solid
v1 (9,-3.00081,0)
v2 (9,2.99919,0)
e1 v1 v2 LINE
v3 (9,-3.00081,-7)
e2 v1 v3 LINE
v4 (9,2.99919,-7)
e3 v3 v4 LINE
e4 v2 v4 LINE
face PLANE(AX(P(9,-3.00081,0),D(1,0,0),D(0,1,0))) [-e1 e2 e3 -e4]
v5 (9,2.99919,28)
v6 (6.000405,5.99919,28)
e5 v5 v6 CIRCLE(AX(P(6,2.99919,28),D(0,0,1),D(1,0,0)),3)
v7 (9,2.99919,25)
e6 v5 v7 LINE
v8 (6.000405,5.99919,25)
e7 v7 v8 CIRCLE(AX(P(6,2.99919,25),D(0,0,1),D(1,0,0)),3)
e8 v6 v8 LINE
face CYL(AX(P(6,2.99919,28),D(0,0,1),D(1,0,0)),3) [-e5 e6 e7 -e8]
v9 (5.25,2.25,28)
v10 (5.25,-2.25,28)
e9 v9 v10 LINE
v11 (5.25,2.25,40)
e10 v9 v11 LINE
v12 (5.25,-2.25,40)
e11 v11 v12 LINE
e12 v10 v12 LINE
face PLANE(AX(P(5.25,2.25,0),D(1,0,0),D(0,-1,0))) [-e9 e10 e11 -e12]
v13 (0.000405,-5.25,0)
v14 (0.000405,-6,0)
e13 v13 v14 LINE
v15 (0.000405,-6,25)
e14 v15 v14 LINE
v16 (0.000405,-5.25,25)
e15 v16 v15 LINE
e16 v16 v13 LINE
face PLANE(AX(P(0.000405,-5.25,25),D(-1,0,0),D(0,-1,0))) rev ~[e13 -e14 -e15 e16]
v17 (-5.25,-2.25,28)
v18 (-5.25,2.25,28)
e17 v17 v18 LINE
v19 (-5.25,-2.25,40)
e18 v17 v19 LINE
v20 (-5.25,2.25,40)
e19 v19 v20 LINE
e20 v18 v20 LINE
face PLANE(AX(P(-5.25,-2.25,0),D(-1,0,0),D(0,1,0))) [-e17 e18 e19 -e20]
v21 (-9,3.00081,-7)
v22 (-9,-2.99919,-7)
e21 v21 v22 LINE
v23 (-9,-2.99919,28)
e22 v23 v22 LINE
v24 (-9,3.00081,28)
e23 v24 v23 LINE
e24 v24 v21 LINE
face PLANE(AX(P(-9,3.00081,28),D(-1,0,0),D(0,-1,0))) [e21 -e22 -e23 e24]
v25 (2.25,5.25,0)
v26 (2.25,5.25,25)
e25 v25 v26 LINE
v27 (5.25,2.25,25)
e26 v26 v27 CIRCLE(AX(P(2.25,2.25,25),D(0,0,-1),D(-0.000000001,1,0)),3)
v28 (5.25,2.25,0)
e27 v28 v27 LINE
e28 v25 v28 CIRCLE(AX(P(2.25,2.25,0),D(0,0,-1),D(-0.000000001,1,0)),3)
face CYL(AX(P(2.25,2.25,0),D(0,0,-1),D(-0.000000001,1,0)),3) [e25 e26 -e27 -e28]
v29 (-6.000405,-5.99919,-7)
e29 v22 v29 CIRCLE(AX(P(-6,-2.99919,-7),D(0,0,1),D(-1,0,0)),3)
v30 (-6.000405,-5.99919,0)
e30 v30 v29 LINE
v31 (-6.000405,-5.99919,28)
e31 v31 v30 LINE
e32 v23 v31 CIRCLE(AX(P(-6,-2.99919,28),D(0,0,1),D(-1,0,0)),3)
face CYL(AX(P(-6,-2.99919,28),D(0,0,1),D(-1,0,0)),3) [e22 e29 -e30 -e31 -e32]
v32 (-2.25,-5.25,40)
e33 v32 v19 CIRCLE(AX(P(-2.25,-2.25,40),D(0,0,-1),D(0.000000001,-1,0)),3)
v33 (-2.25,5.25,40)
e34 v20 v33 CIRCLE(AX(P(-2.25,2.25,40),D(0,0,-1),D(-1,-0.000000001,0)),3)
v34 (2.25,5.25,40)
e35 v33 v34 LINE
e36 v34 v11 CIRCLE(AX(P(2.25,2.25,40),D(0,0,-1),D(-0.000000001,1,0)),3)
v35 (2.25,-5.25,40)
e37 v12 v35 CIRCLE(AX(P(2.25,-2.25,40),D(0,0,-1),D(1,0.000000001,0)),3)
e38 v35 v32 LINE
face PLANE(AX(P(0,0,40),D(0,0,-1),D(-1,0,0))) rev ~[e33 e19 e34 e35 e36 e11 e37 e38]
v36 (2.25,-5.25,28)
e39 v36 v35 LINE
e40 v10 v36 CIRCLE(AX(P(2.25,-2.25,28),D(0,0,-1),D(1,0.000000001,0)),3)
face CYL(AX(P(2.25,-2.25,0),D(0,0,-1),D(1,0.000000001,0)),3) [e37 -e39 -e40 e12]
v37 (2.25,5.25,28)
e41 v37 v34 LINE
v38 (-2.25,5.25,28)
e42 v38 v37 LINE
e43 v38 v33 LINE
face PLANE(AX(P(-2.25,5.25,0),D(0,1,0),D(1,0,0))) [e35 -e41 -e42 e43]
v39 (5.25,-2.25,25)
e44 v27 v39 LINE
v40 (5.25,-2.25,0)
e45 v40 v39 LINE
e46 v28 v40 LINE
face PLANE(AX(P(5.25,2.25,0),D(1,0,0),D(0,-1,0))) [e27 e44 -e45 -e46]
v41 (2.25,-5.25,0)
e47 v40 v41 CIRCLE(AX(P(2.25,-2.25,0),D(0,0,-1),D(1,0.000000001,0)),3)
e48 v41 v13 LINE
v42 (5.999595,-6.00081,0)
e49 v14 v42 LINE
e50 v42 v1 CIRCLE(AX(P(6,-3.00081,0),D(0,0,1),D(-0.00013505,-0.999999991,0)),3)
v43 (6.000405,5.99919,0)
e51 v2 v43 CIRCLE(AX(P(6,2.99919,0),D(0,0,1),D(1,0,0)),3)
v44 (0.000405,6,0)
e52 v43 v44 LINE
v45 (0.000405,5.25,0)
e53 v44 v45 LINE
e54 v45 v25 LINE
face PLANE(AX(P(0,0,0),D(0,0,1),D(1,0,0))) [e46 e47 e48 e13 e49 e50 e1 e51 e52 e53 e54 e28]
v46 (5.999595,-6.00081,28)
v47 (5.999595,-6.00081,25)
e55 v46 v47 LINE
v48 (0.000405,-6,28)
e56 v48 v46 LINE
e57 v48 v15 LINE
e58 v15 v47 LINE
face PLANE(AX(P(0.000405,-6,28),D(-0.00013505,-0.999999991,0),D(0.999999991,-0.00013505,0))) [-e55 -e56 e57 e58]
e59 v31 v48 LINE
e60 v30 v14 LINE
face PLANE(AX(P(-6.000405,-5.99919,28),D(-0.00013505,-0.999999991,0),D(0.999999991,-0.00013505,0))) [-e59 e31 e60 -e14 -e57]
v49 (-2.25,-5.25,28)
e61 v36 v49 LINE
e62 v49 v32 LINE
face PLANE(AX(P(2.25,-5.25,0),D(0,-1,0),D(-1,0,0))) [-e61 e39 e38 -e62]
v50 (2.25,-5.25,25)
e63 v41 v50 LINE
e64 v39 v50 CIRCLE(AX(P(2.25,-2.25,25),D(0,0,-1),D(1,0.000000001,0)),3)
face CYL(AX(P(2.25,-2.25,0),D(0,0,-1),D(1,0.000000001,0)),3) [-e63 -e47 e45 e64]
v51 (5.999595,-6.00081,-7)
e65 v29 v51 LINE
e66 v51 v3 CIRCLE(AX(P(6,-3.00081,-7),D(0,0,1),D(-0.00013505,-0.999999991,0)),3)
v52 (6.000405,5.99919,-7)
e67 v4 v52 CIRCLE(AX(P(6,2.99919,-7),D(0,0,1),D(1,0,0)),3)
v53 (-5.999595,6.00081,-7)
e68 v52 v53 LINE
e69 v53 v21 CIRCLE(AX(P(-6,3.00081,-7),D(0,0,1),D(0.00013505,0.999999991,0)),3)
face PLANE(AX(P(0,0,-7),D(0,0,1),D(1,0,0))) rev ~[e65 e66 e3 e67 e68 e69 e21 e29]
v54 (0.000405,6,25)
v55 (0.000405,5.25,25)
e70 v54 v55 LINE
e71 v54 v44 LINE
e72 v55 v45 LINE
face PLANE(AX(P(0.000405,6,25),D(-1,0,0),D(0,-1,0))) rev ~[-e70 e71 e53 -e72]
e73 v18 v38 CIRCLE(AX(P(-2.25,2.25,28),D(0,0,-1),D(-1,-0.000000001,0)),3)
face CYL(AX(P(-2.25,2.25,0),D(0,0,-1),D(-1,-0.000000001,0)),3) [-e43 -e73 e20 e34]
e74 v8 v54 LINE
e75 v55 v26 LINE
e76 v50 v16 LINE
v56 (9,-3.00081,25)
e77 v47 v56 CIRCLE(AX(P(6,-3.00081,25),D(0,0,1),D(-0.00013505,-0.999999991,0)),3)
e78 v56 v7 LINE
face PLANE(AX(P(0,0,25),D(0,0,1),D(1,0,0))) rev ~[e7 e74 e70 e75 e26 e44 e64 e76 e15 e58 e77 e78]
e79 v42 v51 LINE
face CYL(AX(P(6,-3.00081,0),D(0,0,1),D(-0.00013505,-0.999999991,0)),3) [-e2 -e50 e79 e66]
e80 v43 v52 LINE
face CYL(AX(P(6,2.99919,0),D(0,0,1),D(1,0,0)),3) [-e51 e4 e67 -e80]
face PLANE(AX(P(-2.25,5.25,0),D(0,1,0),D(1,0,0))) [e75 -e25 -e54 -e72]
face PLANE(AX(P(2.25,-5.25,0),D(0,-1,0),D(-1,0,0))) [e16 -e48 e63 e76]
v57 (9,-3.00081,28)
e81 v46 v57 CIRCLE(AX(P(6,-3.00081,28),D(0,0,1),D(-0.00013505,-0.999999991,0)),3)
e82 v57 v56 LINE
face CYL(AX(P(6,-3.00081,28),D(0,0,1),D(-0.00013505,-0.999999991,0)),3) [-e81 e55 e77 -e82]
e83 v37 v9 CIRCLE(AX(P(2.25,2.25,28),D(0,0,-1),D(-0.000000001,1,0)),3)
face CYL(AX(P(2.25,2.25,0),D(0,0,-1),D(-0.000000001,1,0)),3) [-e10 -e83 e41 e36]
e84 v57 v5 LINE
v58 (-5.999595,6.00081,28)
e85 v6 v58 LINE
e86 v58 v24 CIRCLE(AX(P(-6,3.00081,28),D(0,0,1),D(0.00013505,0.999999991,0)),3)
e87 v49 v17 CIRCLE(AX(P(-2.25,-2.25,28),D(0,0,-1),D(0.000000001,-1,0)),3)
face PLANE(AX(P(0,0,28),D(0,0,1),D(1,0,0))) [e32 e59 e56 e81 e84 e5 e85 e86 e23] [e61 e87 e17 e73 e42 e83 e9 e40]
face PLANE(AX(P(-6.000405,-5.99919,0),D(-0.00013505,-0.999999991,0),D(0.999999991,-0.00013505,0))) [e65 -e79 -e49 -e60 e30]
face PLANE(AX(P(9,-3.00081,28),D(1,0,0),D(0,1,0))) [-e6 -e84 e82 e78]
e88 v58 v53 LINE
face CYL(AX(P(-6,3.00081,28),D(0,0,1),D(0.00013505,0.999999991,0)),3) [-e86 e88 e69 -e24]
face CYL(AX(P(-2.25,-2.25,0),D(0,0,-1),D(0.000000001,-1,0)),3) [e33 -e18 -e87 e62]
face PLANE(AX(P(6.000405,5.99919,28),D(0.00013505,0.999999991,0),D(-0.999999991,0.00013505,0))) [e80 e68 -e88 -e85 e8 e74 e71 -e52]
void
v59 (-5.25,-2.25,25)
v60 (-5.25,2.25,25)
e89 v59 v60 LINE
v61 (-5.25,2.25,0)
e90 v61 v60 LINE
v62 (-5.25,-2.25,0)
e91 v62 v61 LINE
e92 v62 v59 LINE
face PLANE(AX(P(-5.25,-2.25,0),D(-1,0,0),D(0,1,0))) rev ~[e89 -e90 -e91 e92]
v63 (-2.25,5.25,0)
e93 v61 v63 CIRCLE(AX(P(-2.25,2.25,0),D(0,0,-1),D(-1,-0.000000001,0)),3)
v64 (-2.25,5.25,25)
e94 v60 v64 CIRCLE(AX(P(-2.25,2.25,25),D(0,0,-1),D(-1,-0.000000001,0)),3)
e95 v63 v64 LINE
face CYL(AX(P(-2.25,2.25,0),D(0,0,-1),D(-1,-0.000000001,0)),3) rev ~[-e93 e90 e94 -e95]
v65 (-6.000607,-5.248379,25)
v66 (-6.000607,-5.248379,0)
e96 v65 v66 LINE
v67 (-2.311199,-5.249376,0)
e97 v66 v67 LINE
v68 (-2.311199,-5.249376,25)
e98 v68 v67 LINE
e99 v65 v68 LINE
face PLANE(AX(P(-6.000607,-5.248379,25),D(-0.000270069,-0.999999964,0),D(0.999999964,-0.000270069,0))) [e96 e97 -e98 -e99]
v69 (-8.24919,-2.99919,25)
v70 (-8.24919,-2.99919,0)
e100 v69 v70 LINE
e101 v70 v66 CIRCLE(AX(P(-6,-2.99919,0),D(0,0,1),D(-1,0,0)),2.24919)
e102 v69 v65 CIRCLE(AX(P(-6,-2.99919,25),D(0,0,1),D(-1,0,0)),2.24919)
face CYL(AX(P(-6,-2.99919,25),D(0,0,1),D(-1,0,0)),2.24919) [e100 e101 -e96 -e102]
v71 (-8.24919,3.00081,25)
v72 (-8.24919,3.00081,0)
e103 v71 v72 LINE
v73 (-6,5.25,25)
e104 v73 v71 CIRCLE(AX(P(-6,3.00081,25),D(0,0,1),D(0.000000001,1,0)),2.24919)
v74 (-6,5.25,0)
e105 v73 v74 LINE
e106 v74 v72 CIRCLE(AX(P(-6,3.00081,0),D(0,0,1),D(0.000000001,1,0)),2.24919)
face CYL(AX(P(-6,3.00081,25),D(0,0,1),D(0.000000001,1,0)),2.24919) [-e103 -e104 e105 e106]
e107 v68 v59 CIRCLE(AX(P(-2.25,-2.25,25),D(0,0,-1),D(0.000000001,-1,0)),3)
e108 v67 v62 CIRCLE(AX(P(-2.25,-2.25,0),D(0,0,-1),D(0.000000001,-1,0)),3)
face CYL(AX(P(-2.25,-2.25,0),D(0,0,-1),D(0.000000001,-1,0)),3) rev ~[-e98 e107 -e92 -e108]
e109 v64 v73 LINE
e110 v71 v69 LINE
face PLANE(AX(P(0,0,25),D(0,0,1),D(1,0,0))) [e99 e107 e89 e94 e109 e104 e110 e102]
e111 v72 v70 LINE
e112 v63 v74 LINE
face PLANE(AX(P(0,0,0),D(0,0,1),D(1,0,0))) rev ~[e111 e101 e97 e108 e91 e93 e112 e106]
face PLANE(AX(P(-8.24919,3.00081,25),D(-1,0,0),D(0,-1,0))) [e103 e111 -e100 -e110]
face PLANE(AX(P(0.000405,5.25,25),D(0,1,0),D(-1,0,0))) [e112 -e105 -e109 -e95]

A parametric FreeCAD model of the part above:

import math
import FreeCAD as App
import Part
import Sketcher

doc = App.newDocument("Part")
body = doc.addObject("PartDesign::Body", "Body")

sketch1 = doc.addObject("Sketcher::SketchObject", "Sketch")
body.addObject(sketch1)
sketch1.AttachmentSupport = (doc.XY_Plane, [""])
sketch1.MapMode = "FlatFace"
sketch1.addGeometry(Part.LineSegment(App.Vector(2.2, 5.2, 0), App.Vector(-2.2, 5.2, 0)), False)
sketch1.addGeometry(Part.ArcOfCircle(Part.Circle(App.Vector(-2.3, 2.3, 0), App.Vector(0, 0, 1), 3), math.radians(90), math.radians(180)), False)
sketch1.addGeometry(Part.LineSegment(App.Vector(-5.2, 2.2, 0), App.Vector(-5.2, -2.2, 0)), False)
sketch1.addGeometry(Part.ArcOfCircle(Part.Circle(App.Vector(-2.3, -2.3, 0), App.Vector(0, 0, 1), 3), math.radians(180), math.radians(270)), False)
sketch1.addGeometry(Part.LineSegment(App.Vector(-2.2, -5.2, 0), App.Vector(2.2, -5.2, 0)), False)
sketch1.addGeometry(Part.ArcOfCircle(Part.Circle(App.Vector(2.3, -2.3, 0), App.Vector(0, 0, 1), 3), math.radians(-90), math.radians(0)), False)
sketch1.addGeometry(Part.LineSegment(App.Vector(5.2, -2.2, 0), App.Vector(5.2, 2.2, 0)), False)
sketch1.addGeometry(Part.ArcOfCircle(Part.Circle(App.Vector(2.3, 2.3, 0), App.Vector(0, 0, 1), 3), math.radians(0), math.radians(90)), False)
sketch1.addConstraint(Sketcher.Constraint("Tangent", 0, 2, 1, 1))
sketch1.addConstraint(Sketcher.Constraint("Tangent", 1, 2, 2, 1))
sketch1.addConstraint(Sketcher.Constraint("Tangent", 2, 2, 3, 1))
sketch1.addConstraint(Sketcher.Constraint("Tangent", 3, 2, 4, 1))
sketch1.addConstraint(Sketcher.Constraint("Tangent", 4, 2, 5, 1))
sketch1.addConstraint(Sketcher.Constraint("Tangent", 5, 2, 6, 1))
sketch1.addConstraint(Sketcher.Constraint("Tangent", 6, 2, 7, 1))
sketch1.addConstraint(Sketcher.Constraint("Tangent", 7, 2, 0, 1))
sketch1.addConstraint(Sketcher.Constraint("Horizontal", 0))
sketch1.addConstraint(Sketcher.Constraint("Vertical", 2))
sketch1.addConstraint(Sketcher.Constraint("Horizontal", 4))
sketch1.addConstraint(Sketcher.Constraint("Vertical", 6))
sketch1.addConstraint(Sketcher.Constraint("Equal", 1, 3))
sketch1.addConstraint(Sketcher.Constraint("Equal", 3, 5))
sketch1.addConstraint(Sketcher.Constraint("Equal", 5, 7))
sketch1.addConstraint(Sketcher.Constraint("Symmetric", 1, 3, 5, 3, -1, 1))
sketch1.addConstraint(Sketcher.Constraint("Equal", 4, 2))
sketch1.addConstraint(Sketcher.Constraint("Radius", 1, 3.0))
sketch1.addConstraint(Sketcher.Constraint("DistanceX", 0, 2, 0, 1, 4.5))
pad1 = doc.addObject("PartDesign::Pad", "Pad")
body.addObject(pad1)
pad1.Profile = sketch1
pad1.Length = 40

sketch2 = doc.addObject("Sketcher::SketchObject", "Sketch001")
body.addObject(sketch2)
sketch2.AttachmentSupport = (doc.XY_Plane, [""])
sketch2.MapMode = "FlatFace"
sketch2.addGeometry(Part.LineSegment(App.Vector(9, -3, 0), App.Vector(9, 3, 0)), False)
sketch2.addGeometry(Part.ArcOfCircle(Part.Circle(App.Vector(6, 3, 0), App.Vector(0, 0, 1), 3), math.radians(0), math.radians(90)), False)
sketch2.addGeometry(Part.LineSegment(App.Vector(6, 6, 0), App.Vector(-6, 6, 0)), False)
sketch2.addGeometry(Part.ArcOfCircle(Part.Circle(App.Vector(-6, 3, 0), App.Vector(0, 0, 1), 3), math.radians(90), math.radians(180)), False)
sketch2.addGeometry(Part.LineSegment(App.Vector(-9, 3, 0), App.Vector(-9, -3, 0)), False)
sketch2.addGeometry(Part.ArcOfCircle(Part.Circle(App.Vector(-6, -3, 0), App.Vector(0, 0, 1), 3), math.radians(180), math.radians(270)), False)
sketch2.addGeometry(Part.LineSegment(App.Vector(-6, -6, 0), App.Vector(6, -6, 0)), False)
sketch2.addGeometry(Part.ArcOfCircle(Part.Circle(App.Vector(6, -3, 0), App.Vector(0, 0, 1), 3), math.radians(-90), math.radians(0)), False)
sketch2.addConstraint(Sketcher.Constraint("Tangent", 0, 2, 1, 1))
sketch2.addConstraint(Sketcher.Constraint("Tangent", 1, 2, 2, 1))
sketch2.addConstraint(Sketcher.Constraint("Tangent", 2, 2, 3, 1))
sketch2.addConstraint(Sketcher.Constraint("Tangent", 3, 2, 4, 1))
sketch2.addConstraint(Sketcher.Constraint("Tangent", 4, 2, 5, 1))
sketch2.addConstraint(Sketcher.Constraint("Tangent", 5, 2, 6, 1))
sketch2.addConstraint(Sketcher.Constraint("Tangent", 6, 2, 7, 1))
sketch2.addConstraint(Sketcher.Constraint("Tangent", 7, 2, 0, 1))
sketch2.addConstraint(Sketcher.Constraint("Vertical", 0))
sketch2.addConstraint(Sketcher.Constraint("Vertical", 4))
sketch2.addConstraint(Sketcher.Constraint("Equal", 1, 3))
sketch2.addConstraint(Sketcher.Constraint("Equal", 3, 5))
sketch2.addConstraint(Sketcher.Constraint("Equal", 5, 7))
sketch2.addConstraint(Sketcher.Constraint("Symmetric", 1, 3, 5, 3, -1, 1))
sketch2.addConstraint(Sketcher.Constraint("Parallel", 2, 6))
sketch2.addConstraint(Sketcher.Constraint("Radius", 1, 3.0))
sketch2.addConstraint(Sketcher.Constraint("DistanceY", 0, 1, 0, 2, 6.0))
sketch2.addConstraint(Sketcher.Constraint("Distance", 2, 12.0))
sketch2.addConstraint(Sketcher.Constraint("DistanceY", -1, 1, 1, 3, 2.99919))
pad2 = doc.addObject("PartDesign::Pad", "Pad001")
body.addObject(pad2)
pad2.Profile = sketch2
pad2.Length = 7
pad2.Reversed = True

sketch3 = doc.addObject("Sketcher::SketchObject", "Sketch002")
body.addObject(sketch3)
sketch3.AttachmentSupport = (doc.XY_Plane, [""])
sketch3.MapMode = "FlatFace"
sketch3.AttachmentOffset = App.Placement(App.Vector(0, 0, 25), App.Rotation())
sketch3.addGeometry(Part.LineSegment(App.Vector(-6, 5.2, 0), App.Vector(0, 5.2, 0)), False)
sketch3.addGeometry(Part.LineSegment(App.Vector(0, 5.2, 0), App.Vector(0, 6, 0)), False)
sketch3.addGeometry(Part.LineSegment(App.Vector(0, 6, 0), App.Vector(-6, 6, 0)), False)
sketch3.addGeometry(Part.ArcOfCircle(Part.Circle(App.Vector(-6, 3, 0), App.Vector(0, 0, 1), 3), math.radians(90), math.radians(180)), False)
sketch3.addGeometry(Part.LineSegment(App.Vector(-9, 3, 0), App.Vector(-9, -3, 0)), False)
sketch3.addGeometry(Part.ArcOfCircle(Part.Circle(App.Vector(-6, -3, 0), App.Vector(0, 0, 1), 3), math.radians(180), math.radians(270)), False)
sketch3.addGeometry(Part.LineSegment(App.Vector(-6, -6, 0), App.Vector(0, -6, 0)), False)
sketch3.addGeometry(Part.LineSegment(App.Vector(0, -6, 0), App.Vector(0, -5.2, 0)), False)
sketch3.addGeometry(Part.LineSegment(App.Vector(0, -5.2, 0), App.Vector(-6, -5.2, 0)), False)
sketch3.addGeometry(Part.ArcOfCircle(Part.Circle(App.Vector(-6, -3, 0), App.Vector(0, 0, 1), 2.2), math.radians(180), math.radians(270)), False)
sketch3.addGeometry(Part.LineSegment(App.Vector(-8.2, -3, 0), App.Vector(-8.2, 3, 0)), False)
sketch3.addGeometry(Part.ArcOfCircle(Part.Circle(App.Vector(-6, 3, 0), App.Vector(0, 0, 1), 2.2), math.radians(90), math.radians(180)), False)
sketch3.addConstraint(Sketcher.Constraint("Coincident", 0, 2, 1, 1))
sketch3.addConstraint(Sketcher.Constraint("Coincident", 1, 2, 2, 1))
sketch3.addConstraint(Sketcher.Constraint("Tangent", 2, 2, 3, 1))
sketch3.addConstraint(Sketcher.Constraint("Tangent", 3, 2, 4, 1))
sketch3.addConstraint(Sketcher.Constraint("Tangent", 4, 2, 5, 1))
sketch3.addConstraint(Sketcher.Constraint("Tangent", 5, 2, 6, 1))
sketch3.addConstraint(Sketcher.Constraint("Coincident", 6, 2, 7, 1))
sketch3.addConstraint(Sketcher.Constraint("Coincident", 7, 2, 8, 1))
sketch3.addConstraint(Sketcher.Constraint("Tangent", 8, 2, 9, 2))
sketch3.addConstraint(Sketcher.Constraint("Tangent", 9, 1, 10, 1))
sketch3.addConstraint(Sketcher.Constraint("Tangent", 10, 2, 11, 2))
sketch3.addConstraint(Sketcher.Constraint("Tangent", 11, 1, 0, 1))
sketch3.addConstraint(Sketcher.Constraint("Horizontal", 0))
sketch3.addConstraint(Sketcher.Constraint("Vertical", 1))
sketch3.addConstraint(Sketcher.Constraint("Vertical", 4))
sketch3.addConstraint(Sketcher.Constraint("Vertical", 7))
sketch3.addConstraint(Sketcher.Constraint("Vertical", 10))
sketch3.addConstraint(Sketcher.Constraint("Coincident", 9, 3, 5, 3))
sketch3.addConstraint(Sketcher.Constraint("Coincident", 11, 3, 3, 3))
sketch3.addConstraint(Sketcher.Constraint("Equal", 3, 5))
sketch3.addConstraint(Sketcher.Constraint("Symmetric", 1, 2, 6, 2, -1))
sketch3.addConstraint(Sketcher.Constraint("Parallel", 2, 6))
sketch3.addConstraint(Sketcher.Constraint("Equal", 1, 7))
sketch3.addConstraint(Sketcher.Constraint("Radius", 3, 3.0))
sketch3.addConstraint(Sketcher.Constraint("DistanceY", 4, 2, 4, 1, 6.0))
sketch3.addConstraint(Sketcher.Constraint("Distance", 2, 6.0))
sketch3.addConstraint(Sketcher.Constraint("DistanceX", 3, 3, -1, 1, 6.0))
sketch3.addConstraint(Sketcher.Constraint("DistanceY", 1, 1, 1, 2, 0.75))
sketch3.addConstraint(Sketcher.Constraint("Radius", 9, 2.24919))
pad3 = doc.addObject("PartDesign::Pad", "Pad002")
body.addObject(pad3)
pad3.Profile = sketch3
pad3.Length = 25
pad3.Reversed = True

sketch4 = doc.addObject("Sketcher::SketchObject", "Sketch003")
body.addObject(sketch4)
sketch4.AttachmentSupport = (doc.XY_Plane, [""])
sketch4.MapMode = "FlatFace"
sketch4.AttachmentOffset = App.Placement(App.Vector(0, 0, 28), App.Rotation())
sketch4.addGeometry(Part.LineSegment(App.Vector(0, -6, 0), App.Vector(6, -6, 0)), False)
sketch4.addGeometry(Part.ArcOfCircle(Part.Circle(App.Vector(6, -3, 0), App.Vector(0, 0, 1), 3), math.radians(-90), math.radians(0)), False)
sketch4.addGeometry(Part.LineSegment(App.Vector(9, -3, 0), App.Vector(9, 3, 0)), False)
sketch4.addGeometry(Part.ArcOfCircle(Part.Circle(App.Vector(6, 3, 0), App.Vector(0, 0, 1), 3), math.radians(0), math.radians(90)), False)
sketch4.addGeometry(Part.LineSegment(App.Vector(6, 6, 0), App.Vector(-6, 6, 0)), False)
sketch4.addGeometry(Part.ArcOfCircle(Part.Circle(App.Vector(-6, 3, 0), App.Vector(0, 0, 1), 3), math.radians(90), math.radians(180)), False)
sketch4.addGeometry(Part.LineSegment(App.Vector(-9, 3, 0), App.Vector(-9, -3, 0)), False)
sketch4.addGeometry(Part.ArcOfCircle(Part.Circle(App.Vector(-6, -3, 0), App.Vector(0, 0, 1), 3), math.radians(180), math.radians(270)), False)
sketch4.addGeometry(Part.LineSegment(App.Vector(-6, -6, 0), App.Vector(0, -6, 0)), False)
sketch4.addConstraint(Sketcher.Constraint("Tangent", 0, 2, 1, 1))
sketch4.addConstraint(Sketcher.Constraint("Tangent", 1, 2, 2, 1))
sketch4.addConstraint(Sketcher.Constraint("Tangent", 2, 2, 3, 1))
sketch4.addConstraint(Sketcher.Constraint("Tangent", 3, 2, 4, 1))
sketch4.addConstraint(Sketcher.Constraint("Tangent", 4, 2, 5, 1))
sketch4.addConstraint(Sketcher.Constraint("Tangent", 5, 2, 6, 1))
sketch4.addConstraint(Sketcher.Constraint("Tangent", 6, 2, 7, 1))
sketch4.addConstraint(Sketcher.Constraint("Tangent", 7, 2, 8, 1))
sketch4.addConstraint(Sketcher.Constraint("Coincident", 8, 2, 0, 1))
sketch4.addConstraint(Sketcher.Constraint("Vertical", 2))
sketch4.addConstraint(Sketcher.Constraint("Vertical", 6))
sketch4.addConstraint(Sketcher.Constraint("Equal", 1, 3))
sketch4.addConstraint(Sketcher.Constraint("Equal", 3, 5))
sketch4.addConstraint(Sketcher.Constraint("Equal", 5, 7))
sketch4.addConstraint(Sketcher.Constraint("Symmetric", 1, 3, 5, 3, -1, 1))
sketch4.addConstraint(Sketcher.Constraint("Symmetric", 3, 2, 7, 2, -1, 1))
sketch4.addConstraint(Sketcher.Constraint("Radius", 1, 3.0))
sketch4.addConstraint(Sketcher.Constraint("DistanceY", 2, 1, 2, 2, 6.0))
sketch4.addConstraint(Sketcher.Constraint("Distance", 4, 12.0))
sketch4.addConstraint(Sketcher.Constraint("Distance", 0, 5.99919))
sketch4.addConstraint(Sketcher.Constraint("DistanceY", 1, 3, -1, 1, 3.00081))
pad4 = doc.addObject("PartDesign::Pad", "Pad003")
body.addObject(pad4)
pad4.Profile = sketch4
pad4.Length = 3
pad4.Reversed = True

doc.recompute()
